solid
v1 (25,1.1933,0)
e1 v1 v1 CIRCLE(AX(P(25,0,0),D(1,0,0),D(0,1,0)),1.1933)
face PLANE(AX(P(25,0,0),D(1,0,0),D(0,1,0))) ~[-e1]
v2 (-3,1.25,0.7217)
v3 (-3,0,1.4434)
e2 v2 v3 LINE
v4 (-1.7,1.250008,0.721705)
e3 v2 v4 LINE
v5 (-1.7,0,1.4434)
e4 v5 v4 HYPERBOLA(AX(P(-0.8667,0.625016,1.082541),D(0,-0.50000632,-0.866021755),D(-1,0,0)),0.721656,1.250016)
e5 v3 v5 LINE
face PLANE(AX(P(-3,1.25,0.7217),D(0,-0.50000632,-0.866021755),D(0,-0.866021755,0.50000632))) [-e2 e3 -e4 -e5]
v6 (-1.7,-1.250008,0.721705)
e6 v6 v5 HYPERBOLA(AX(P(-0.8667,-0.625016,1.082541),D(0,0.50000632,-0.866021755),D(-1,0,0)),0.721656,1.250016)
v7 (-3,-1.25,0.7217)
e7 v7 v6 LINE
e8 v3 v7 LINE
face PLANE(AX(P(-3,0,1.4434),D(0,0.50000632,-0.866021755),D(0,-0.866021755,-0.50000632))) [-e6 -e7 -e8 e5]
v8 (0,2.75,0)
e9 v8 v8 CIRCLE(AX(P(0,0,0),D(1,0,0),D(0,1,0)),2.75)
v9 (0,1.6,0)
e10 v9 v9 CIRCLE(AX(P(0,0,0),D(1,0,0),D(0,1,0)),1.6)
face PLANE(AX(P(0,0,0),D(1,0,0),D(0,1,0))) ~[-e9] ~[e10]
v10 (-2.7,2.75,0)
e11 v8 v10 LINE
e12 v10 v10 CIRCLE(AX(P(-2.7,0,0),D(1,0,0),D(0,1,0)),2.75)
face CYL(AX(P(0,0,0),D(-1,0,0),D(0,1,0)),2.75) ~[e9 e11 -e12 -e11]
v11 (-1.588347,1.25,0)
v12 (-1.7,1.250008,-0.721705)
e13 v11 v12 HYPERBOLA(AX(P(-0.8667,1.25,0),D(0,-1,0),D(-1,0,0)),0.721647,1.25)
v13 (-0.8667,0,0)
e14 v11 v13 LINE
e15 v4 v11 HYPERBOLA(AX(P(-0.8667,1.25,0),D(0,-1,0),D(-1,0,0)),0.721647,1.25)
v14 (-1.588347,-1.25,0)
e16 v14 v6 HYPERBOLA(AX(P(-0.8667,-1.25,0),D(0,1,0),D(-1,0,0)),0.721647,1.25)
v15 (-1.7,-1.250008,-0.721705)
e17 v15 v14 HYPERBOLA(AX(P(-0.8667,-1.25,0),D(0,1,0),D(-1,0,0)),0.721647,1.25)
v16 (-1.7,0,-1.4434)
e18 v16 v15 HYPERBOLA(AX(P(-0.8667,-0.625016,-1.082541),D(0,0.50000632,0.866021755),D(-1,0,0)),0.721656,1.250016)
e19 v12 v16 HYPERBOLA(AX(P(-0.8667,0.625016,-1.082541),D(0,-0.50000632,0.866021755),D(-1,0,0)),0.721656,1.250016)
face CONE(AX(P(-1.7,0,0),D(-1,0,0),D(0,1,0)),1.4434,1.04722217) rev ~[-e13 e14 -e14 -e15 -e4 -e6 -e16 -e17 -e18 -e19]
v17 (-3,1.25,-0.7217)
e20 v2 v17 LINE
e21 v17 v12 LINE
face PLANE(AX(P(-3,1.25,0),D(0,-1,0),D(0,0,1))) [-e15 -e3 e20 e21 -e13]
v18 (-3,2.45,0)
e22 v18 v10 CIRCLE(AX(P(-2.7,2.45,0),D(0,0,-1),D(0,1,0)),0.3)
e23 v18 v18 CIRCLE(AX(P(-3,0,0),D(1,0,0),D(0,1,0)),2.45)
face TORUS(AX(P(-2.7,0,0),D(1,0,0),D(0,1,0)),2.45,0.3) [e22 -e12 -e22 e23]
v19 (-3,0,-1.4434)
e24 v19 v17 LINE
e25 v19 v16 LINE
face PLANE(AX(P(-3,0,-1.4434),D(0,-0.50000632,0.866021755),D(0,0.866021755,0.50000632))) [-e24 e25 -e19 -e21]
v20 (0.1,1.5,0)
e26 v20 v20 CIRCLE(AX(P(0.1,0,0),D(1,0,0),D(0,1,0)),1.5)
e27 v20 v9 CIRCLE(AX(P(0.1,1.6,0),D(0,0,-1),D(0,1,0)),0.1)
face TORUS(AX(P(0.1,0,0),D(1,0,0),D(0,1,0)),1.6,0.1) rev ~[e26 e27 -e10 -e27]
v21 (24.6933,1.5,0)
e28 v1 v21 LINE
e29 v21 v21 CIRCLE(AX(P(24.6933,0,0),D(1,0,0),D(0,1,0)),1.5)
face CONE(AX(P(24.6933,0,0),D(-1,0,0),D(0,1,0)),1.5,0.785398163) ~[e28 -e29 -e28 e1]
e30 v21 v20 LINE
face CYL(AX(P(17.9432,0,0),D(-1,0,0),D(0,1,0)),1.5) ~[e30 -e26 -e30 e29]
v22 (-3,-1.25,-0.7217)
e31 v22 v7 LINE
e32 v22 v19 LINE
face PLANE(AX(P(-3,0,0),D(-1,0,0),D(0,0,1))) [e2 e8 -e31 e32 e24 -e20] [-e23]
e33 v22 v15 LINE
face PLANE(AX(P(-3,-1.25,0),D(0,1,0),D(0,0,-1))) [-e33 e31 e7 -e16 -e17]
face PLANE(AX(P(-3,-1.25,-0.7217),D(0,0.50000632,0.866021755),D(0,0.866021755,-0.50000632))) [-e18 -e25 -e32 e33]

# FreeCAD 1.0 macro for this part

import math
import FreeCAD as App
import Part
import Sketcher

V = App.Vector
Q = App.Units.Quantity


def edges_at(feature, points):
    """Names of the edges that pass closest to the given points."""
    edges = feature.Shape.Edges
    near = lambda p: min(range(len(edges)), key=lambda i: edges[i].distToShape(Part.Vertex(*p))[0])
    return sorted({f"Edge{near(p) + 1}" for p in points})

doc = App.newDocument("Part")
body = doc.addObject("PartDesign::Body", "Body")

# Sketch on XY plane
sketch1 = doc.addObject("Sketcher::SketchObject", "Sketch")
body.addObject(sketch1)
sketch1.AttachmentSupport = (doc.XY_Plane, [""])
sketch1.MapMode = "FlatFace"
sketch1.addGeometry(Part.LineSegment(V(-1.7, 1.4434, 0), V(-0.8667, 0, 0)), False)
sketch1.addGeometry(Part.LineSegment(V(-0.8667, 0, 0), V(25, 0, 0)), False)
sketch1.addGeometry(Part.LineSegment(V(25, 0, 0), V(25, 1.5, 0)), False)
sketch1.addGeometry(Part.LineSegment(V(25, 1.5, 0), V(0, 1.5, 0)), False)
sketch1.addGeometry(Part.LineSegment(V(0, 1.5, 0), V(0, 2.75, 0)), False)
sketch1.addGeometry(Part.LineSegment(V(0, 2.75, 0), V(-3, 2.75, 0)), False)
sketch1.addGeometry(Part.LineSegment(V(-3, 2.75, 0), V(-3, 1.4434, 0)), False)
sketch1.addGeometry(Part.LineSegment(V(-3, 1.4434, 0), V(-1.7, 1.4434, 0)), False)
sketch1.addConstraint(Sketcher.Constraint("Coincident", 0, 2, 1, 1))
sketch1.addConstraint(Sketcher.Constraint("Coincident", 1, 2, 2, 1))
sketch1.addConstraint(Sketcher.Constraint("Coincident", 2, 2, 3, 1))
sketch1.addConstraint(Sketcher.Constraint("Coincident", 3, 2, 4, 1))
sketch1.addConstraint(Sketcher.Constraint("Coincident", 4, 2, 5, 1))
sketch1.addConstraint(Sketcher.Constraint("Coincident", 5, 2, 6, 1))
sketch1.addConstraint(Sketcher.Constraint("Coincident", 6, 2, 7, 1))
sketch1.addConstraint(Sketcher.Constraint("Coincident", 7, 2, 0, 1))
sketch1.addConstraint(Sketcher.Constraint("Horizontal", 1))
sketch1.addConstraint(Sketcher.Constraint("Vertical", 2))
sketch1.addConstraint(Sketcher.Constraint("Horizontal", 3))
sketch1.addConstraint(Sketcher.Constraint("Vertical", 4))
sketch1.addConstraint(Sketcher.Constraint("Horizontal", 5))
sketch1.addConstraint(Sketcher.Constraint("Vertical", 6))
sketch1.addConstraint(Sketcher.Constraint("Horizontal", 7))
sketch1.addConstraint(Sketcher.Constraint("PointOnObject", 0, 2, -1))
sketch1.addConstraint(Sketcher.Constraint("PointOnObject", 3, 2, -2))
sketch1.addConstraint(Sketcher.Constraint("DistanceX", 3, 2, 3, 1, 25.0))
sketch1.addConstraint(Sketcher.Constraint("DistanceX", 5, 2, 5, 1, 3.0))
sketch1.addConstraint(Sketcher.Constraint("DistanceX", 7, 1, 7, 2, 1.3))
sketch1.addConstraint(Sketcher.Constraint("DistanceY", 2, 1, 2, 2, 1.5))
sketch1.addConstraint(Sketcher.Constraint("DistanceY", 4, 1, 4, 2, 1.25))
sketch1.addConstraint(Sketcher.Constraint("DistanceX", 1, 1, 1, 2, 25.8667))
sketch1.addConstraint(Sketcher.Constraint("DistanceY", 6, 2, 6, 1, 1.3066))
revolution = doc.addObject("PartDesign::Revolution", "Revolution")
body.addObject(revolution)
revolution.Profile = sketch1
revolution.ReferenceAxis = (sketch1, ["H_Axis"])
revolution.Angle = 360

# Sketch on YZ plane
sketch2 = doc.addObject("Sketcher::SketchObject", "Sketch001")
body.addObject(sketch2)
sketch2.AttachmentSupport = (doc.YZ_Plane, [""])
sketch2.MapMode = "FlatFace"
sketch2.AttachmentOffset = App.Placement(V(0, 0, -3), App.Rotation())
sketch2.addGeometry(Part.LineSegment(V(1.25, 0.7217, 0), V(0, 1.4434, 0)), False)
sketch2.addGeometry(Part.ArcOfCircle(Part.Circle(V(0, 0, 0), V(0, 0, 1), 1.4434), math.radians(30.000418), math.radians(90)), False)
sketch2.addGeometry(Part.ArcOfCircle(Part.Circle(V(0, 0, 0), V(0, 0, 1), 1.4434), math.radians(90), math.radians(149.999582)), False)
sketch2.addGeometry(Part.LineSegment(V(0, 1.4434, 0), V(-1.25, 0.7217, 0)), False)
sketch2.addGeometry(Part.ArcOfCircle(Part.Circle(V(0, 0, 0), V(0, 0, 1), 1.4434), math.radians(-30.000418), math.radians(30.000418)), False)
sketch2.addGeometry(Part.LineSegment(V(1.25, 0.7217, 0), V(1.25, -0.7217, 0)), False)
sketch2.addGeometry(Part.LineSegment(V(-1.25, 0.7217, 0), V(-1.25, -0.7217, 0)), False)
sketch2.addGeometry(Part.ArcOfCircle(Part.Circle(V(0, 0, 0), V(0, 0, 1), 1.4434), math.radians(149.999582), math.radians(210.000418)), False)
sketch2.addGeometry(Part.LineSegment(V(-1.25, -0.7217, 0), V(0, -1.4434, 0)), False)
sketch2.addGeometry(Part.ArcOfCircle(Part.Circle(V(0, 0, 0), V(0, 0, 1), 1.4434), math.radians(-149.999582), math.radians(-90)), False)
sketch2.addGeometry(Part.ArcOfCircle(Part.Circle(V(0, 0, 0), V(0, 0, 1), 1.4434), math.radians(-90), math.radians(-30.000418)), False)
sketch2.addGeometry(Part.LineSegment(V(0, -1.4434, 0), V(1.25, -0.7217, 0)), False)
sketch2.addConstraint(Sketcher.Constraint("Coincident", 0, 1, 1, 1))
sketch2.addConstraint(Sketcher.Constraint("Coincident", 1, 2, 0, 2))
sketch2.addConstraint(Sketcher.Constraint("Coincident", 2, 1, 3, 1))
sketch2.addConstraint(Sketcher.Constraint("Coincident", 3, 2, 2, 2))
sketch2.addConstraint(Sketcher.Constraint("Coincident", 4, 1, 5, 2))
sketch2.addConstraint(Sketcher.Constraint("Coincident", 5, 1, 4, 2))
sketch2.addConstraint(Sketcher.Constraint("Coincident", 6, 1, 7, 1))
sketch2.addConstraint(Sketcher.Constraint("Coincident", 7, 2, 6, 2))
sketch2.addConstraint(Sketcher.Constraint("Coincident", 8, 1, 9, 1))
sketch2.addConstraint(Sketcher.Constraint("Coincident", 9, 2, 8, 2))
sketch2.addConstraint(Sketcher.Constraint("Coincident", 10, 1, 11, 1))
sketch2.addConstraint(Sketcher.Constraint("Coincident", 11, 2, 10, 2))
sketch2.addConstraint(Sketcher.Constraint("Vertical", 5))
sketch2.addConstraint(Sketcher.Constraint("Vertical", 6))
sketch2.addConstraint(Sketcher.Constraint("Coincident", 1, 3, -1, 1))
sketch2.addConstraint(Sketcher.Constraint("Coincident", 2, 3, -1, 1))
sketch2.addConstraint(Sketcher.Constraint("Coincident", 4, 3, -1, 1))
sketch2.addConstraint(Sketcher.Constraint("Coincident", 7, 3, -1, 1))
sketch2.addConstraint(Sketcher.Constraint("Coincident", 9, 3, -1, 1))
sketch2.addConstraint(Sketcher.Constraint("Coincident", 10, 3, -1, 1))
sketch2.addConstraint(Sketcher.Constraint("Coincident", 2, 1, 1, 2))
sketch2.addConstraint(Sketcher.Constraint("Coincident", 5, 1, 0, 1))
sketch2.addConstraint(Sketcher.Constraint("Coincident", 6, 1, 3, 2))
sketch2.addConstraint(Sketcher.Constraint("Coincident", 8, 1, 7, 2))
sketch2.addConstraint(Sketcher.Constraint("Coincident", 10, 1, 9, 2))
sketch2.addConstraint(Sketcher.Constraint("PointOnObject", 1, 2, -2))
sketch2.addConstraint(Sketcher.Constraint("PointOnObject", 9, 2, -2))
sketch2.addConstraint(Sketcher.Constraint("Parallel", 0, 8))
sketch2.addConstraint(Sketcher.Constraint("Parallel", 3, 11))
sketch2.addConstraint(Sketcher.Constraint("Angle", 0, Q("149.9996 deg")))
sketch2.addConstraint(Sketcher.Constraint("Radius", 1, 1.4434))
pad1 = doc.addObject("PartDesign::Pad", "Pad")
body.addObject(pad1)
pad1.Profile = sketch2
pad1.Type = "UpToFirst"
doc.recompute()

fillet = doc.addObject("PartDesign::Fillet", "Fillet")
body.addObject(fillet)
fillet.Base = (pad1, edges_at(pad1, [(-3, -2.75, 0)]))
fillet.Radius = 0.3
doc.recompute()

chamfer = doc.addObject("PartDesign::Chamfer", "Chamfer")
body.addObject(chamfer)
chamfer.Base = (fillet, edges_at(fillet, [(25, -1.5, 0)]))
chamfer.ChamferType = "Two distances"
chamfer.Size = 0.3067
chamfer.Size2 = 0.3067
doc.recompute()

fillet2 = doc.addObject("PartDesign::Fillet", "Fillet001")
body.addObject(fillet2)
fillet2.Base = (chamfer, edges_at(chamfer, [(0, -1.5, 0)]))
fillet2.Radius = 0.1

doc.recompute()
